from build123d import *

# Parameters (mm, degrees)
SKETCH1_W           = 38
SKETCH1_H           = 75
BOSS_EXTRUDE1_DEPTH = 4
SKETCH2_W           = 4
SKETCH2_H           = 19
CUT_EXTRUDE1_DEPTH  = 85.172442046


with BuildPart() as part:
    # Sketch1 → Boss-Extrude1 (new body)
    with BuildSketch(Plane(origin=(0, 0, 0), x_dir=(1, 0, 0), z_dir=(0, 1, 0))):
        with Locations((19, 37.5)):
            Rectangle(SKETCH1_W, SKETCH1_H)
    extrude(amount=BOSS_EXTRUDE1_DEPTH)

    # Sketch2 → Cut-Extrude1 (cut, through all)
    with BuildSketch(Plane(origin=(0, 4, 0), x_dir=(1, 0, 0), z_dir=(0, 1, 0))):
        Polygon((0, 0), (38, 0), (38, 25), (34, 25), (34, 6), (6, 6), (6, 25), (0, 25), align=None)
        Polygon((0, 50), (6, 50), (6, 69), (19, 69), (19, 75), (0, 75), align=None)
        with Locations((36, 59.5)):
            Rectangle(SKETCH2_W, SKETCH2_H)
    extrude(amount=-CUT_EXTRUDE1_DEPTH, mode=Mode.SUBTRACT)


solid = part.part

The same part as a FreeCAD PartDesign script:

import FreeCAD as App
import Part
import Sketcher

V = App.Vector


def add_polygon(sketch, points):
    """Adds a closed chain of lines whose ends are joined by coincident constraints."""
    first, n = sketch.GeometryCount, len(points)
    for a, b in zip(points, points[1:] + points[:1]):
        sketch.addGeometry(Part.LineSegment(App.Vector(*a, 0), App.Vector(*b, 0)), False)
    for i in range(n):
        sketch.addConstraint(Sketcher.Constraint("Coincident", first + i, 2, first + (i + 1) % n, 1))

doc = App.newDocument("Part")
params = doc.addObject("Spreadsheet::Sheet", "Params")
for row, (alias, value) in enumerate([
    ("sketch1_width", "38 mm"),
    ("sketch1_height", "75 mm"),
    ("pad1_length", "4 mm"),
    ("sketch2_width", "38 mm"),
    ("sketch2_width2", "4 mm"),
    ("sketch2_width3", "28 mm"),
    ("sketch2_width4", "13 mm"),
], start=1):
    params.set(f"A{row}", alias)
    params.set(f"B{row}", "=" + value)
    params.setAlias(f"B{row}", alias)

body = doc.addObject("PartDesign::Body", "Body")

sketch1 = body.newObject("Sketcher::SketchObject", "Sketch")
sketch1.AttachmentSupport = (doc.getObject("XZ_Plane"), [""])
sketch1.MapMode = "FlatFace"
add_polygon(sketch1, [(0, -75), (0, 0), (38, 0), (38, -75)])
sketch1.addConstraint([
    Sketcher.Constraint("Vertical", 0),
    Sketcher.Constraint("Horizontal", 1),
    Sketcher.Constraint("Vertical", 2),
    Sketcher.Constraint("Horizontal", 3),
    Sketcher.Constraint("Coincident", 0, 2, -1, 1),
    Sketcher.Constraint("DistanceX", 1, 1, 1, 2, 38.0),
    Sketcher.Constraint("DistanceY", 0, 1, 0, 2, 75.0),
])
sketch1.setExpression("Constraints[9]", "Params.sketch1_width")
sketch1.setExpression("Constraints[10]", "Params.sketch1_height")
pad1 = body.newObject("PartDesign::Pad", "Pad")
pad1.Profile = sketch1
pad1.setExpression("Length", "Params.pad1_length")
pad1.Reversed = True

sketch2 = body.newObject("Sketcher::SketchObject", "Sketch001")
sketch2.AttachmentSupport = (doc.getObject("XZ_Plane"), [""])
sketch2.MapMode = "FlatFace"
sketch2.AttachmentOffset = App.Placement(V(0, 0, -4), App.Rotation())
add_polygon(sketch2, [(0, 0), (38, 0), (38, -25), (34, -25), (34, -6), (6, -6), (6, -25), (0, -25)])
add_polygon(sketch2, [(0, -50), (6, -50), (6, -69), (19, -69), (19, -75), (0, -75)])
add_polygon(sketch2, [(34, -69), (34, -50), (38, -50), (38, -69)])
sketch2.addConstraint([
    Sketcher.Constraint("Horizontal", 0),
    Sketcher.Constraint("Vertical", 1),
    Sketcher.Constraint("Horizontal", 2),
    Sketcher.Constraint("Vertical", 3),
    Sketcher.Constraint("Horizontal", 4),
    Sketcher.Constraint("Vertical", 5),
    Sketcher.Constraint("Horizontal", 6),
    Sketcher.Constraint("Vertical", 7),
    Sketcher.Constraint("Horizontal", 8),
    Sketcher.Constraint("Vertical", 9),
    Sketcher.Constraint("Horizontal", 10),
    Sketcher.Constraint("Vertical", 11),
    Sketcher.Constraint("Horizontal", 12),
    Sketcher.Constraint("Vertical", 13),
    Sketcher.Constraint("Vertical", 14),
    Sketcher.Constraint("Horizontal", 15),
    Sketcher.Constraint("Vertical", 16),
    Sketcher.Constraint("Horizontal", 17),
    Sketcher.Constraint("Coincident", 7, 2, -1, 1),
    Sketcher.Constraint("PointOnObject", 12, 2, -2),
    Sketcher.Constraint("Horizontal", 2, 2, 5, 2),
    Sketcher.Constraint("Horizontal", 13, 2, 14, 2),
    Sketcher.Constraint("Horizontal", 10, 2, 16, 2),
    Sketcher.Constraint("Vertical", 5, 2, 8, 2),
    Sketcher.Constraint("Vertical", 3, 2, 14, 2),
    Sketcher.Constraint("Vertical", 1, 2, 15, 2),
    Sketcher.Constraint("Equal", 12, 3),
    Sketcher.Constraint("Equal", 5, 9),
    Sketcher.Constraint("Equal", 8, 11),
    Sketcher.Constraint("Equal", 7, 13),
    Sketcher.Constraint("DistanceX", 0, 1, 0, 2, 38.0),
    Sketcher.Constraint("DistanceX", 2, 2, 2, 1, 4.0),
    Sketcher.Constraint("DistanceX", 4, 2, 4, 1, 28.0),
    Sketcher.Constraint("DistanceX", 10, 1, 10, 2, 13.0),
    Sketcher.Constraint("DistanceY", 8, 2, -1, 1, 50.0),
])
sketch2.setExpression("Constraints[48]", "Params.sketch2_width")
sketch2.setExpression("Constraints[49]", "Params.sketch2_width2")
sketch2.setExpression("Constraints[50]", "Params.sketch2_width3")
sketch2.setExpression("Constraints[51]", "Params.sketch2_width4")
pocket1 = body.newObject("PartDesign::Pocket", "Pocket")
pocket1.Profile = sketch2
pocket1.Type = "ThroughAll"
pocket1.Reversed = True

doc.recompute()
